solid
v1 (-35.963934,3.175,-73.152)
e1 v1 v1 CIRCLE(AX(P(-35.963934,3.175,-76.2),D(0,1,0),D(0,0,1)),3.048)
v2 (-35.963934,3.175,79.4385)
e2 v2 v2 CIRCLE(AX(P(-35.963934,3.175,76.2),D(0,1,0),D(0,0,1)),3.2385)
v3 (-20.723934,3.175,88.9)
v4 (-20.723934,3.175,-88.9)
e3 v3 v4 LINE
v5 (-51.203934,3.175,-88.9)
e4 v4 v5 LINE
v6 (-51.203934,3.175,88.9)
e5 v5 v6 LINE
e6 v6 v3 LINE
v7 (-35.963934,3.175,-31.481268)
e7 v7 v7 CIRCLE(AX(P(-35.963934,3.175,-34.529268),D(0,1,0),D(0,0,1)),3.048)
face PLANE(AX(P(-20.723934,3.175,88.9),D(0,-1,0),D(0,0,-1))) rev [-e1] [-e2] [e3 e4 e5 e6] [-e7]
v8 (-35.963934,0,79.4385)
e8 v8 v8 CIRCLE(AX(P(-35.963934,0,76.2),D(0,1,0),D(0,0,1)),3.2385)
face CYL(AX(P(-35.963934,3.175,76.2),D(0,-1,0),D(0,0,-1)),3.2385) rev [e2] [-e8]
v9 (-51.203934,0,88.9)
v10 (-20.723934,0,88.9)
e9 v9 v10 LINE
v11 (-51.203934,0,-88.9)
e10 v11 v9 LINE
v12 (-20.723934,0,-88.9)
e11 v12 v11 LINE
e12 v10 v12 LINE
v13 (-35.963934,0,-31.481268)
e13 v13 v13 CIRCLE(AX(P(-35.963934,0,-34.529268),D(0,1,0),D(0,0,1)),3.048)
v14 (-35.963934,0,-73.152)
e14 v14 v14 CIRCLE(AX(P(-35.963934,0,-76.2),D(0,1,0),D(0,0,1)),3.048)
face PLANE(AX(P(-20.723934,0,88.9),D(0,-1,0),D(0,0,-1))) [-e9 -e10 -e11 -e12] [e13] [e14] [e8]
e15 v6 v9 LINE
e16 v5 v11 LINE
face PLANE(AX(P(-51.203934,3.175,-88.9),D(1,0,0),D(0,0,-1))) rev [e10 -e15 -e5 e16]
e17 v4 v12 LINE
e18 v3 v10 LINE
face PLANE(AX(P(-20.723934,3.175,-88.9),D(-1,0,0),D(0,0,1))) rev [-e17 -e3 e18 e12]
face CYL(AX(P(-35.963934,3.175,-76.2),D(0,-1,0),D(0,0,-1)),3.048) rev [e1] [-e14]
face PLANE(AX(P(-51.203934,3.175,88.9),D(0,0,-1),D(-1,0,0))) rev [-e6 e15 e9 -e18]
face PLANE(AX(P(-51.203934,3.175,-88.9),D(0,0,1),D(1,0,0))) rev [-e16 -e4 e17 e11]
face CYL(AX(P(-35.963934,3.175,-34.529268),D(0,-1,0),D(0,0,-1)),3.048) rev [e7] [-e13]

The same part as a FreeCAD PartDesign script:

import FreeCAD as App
import Part
import Sketcher
from FreeCAD import Vector
Q = App.Units.Quantity


def add_polygon(sketch, points):
    """Adds a closed chain of lines whose ends are joined by coincident constraints."""
    first, n = sketch.GeometryCount, len(points)
    for a, b in zip(points, points[1:] + points[:1]):
        sketch.addGeometry(Part.LineSegment(App.Vector(*a, 0), App.Vector(*b, 0)), False)
    for i in range(n):
        sketch.addConstraint(Sketcher.Constraint("Coincident", first + i, 2, first + (i + 1) % n, 1))

doc = App.newDocument("Part")
params = doc.addObject("Spreadsheet::Sheet", "Params")
for row, (alias, value) in enumerate([
    ("sketch1_diameter", "0.24 in"),
    ("sketch1_height", "7 in"),
    ("sketch1_diameter2", "0.255 in"),
    ("sketch1_width", "1.2 in"),
    ("pad1_length", "0.125 in"),
], start=1):
    params.set(f"A{row}", alias)
    params.set(f"B{row}", "=" + value)
    params.setAlias(f"B{row}", alias)

body = doc.addObject("PartDesign::Body", "Body")

# Sketch on XZ plane
sketch1 = body.newObject("Sketcher::SketchObject", "Sketch")
sketch1.AttachmentSupport = (doc.getObject("XZ_Plane"), [""])
sketch1.MapMode = "FlatFace"
add_polygon(sketch1, [(-51.203934, -88.9), (-51.203934, 88.9), (-20.723934, 88.9), (-20.723934, -88.9)])  # lines 0-3
sketch1.addGeometry(Part.Circle(Vector(-35.963934, 76.2, 0), Vector(0, 0, 1), 3.2385), False)  # 4
sketch1.addGeometry(Part.Circle(Vector(-35.963934, -34.529268, 0), Vector(0, 0, 1), 3.048), False)  # 5
sketch1.addGeometry(Part.Circle(Vector(-35.963934, -76.2, 0), Vector(0, 0, 1), 3.048), False)  # 6
sketch1.addConstraint(Sketcher.Constraint("Vertical", 0))
sketch1.addConstraint(Sketcher.Constraint("Horizontal", 1))
sketch1.addConstraint(Sketcher.Constraint("Vertical", 2))
sketch1.addConstraint(Sketcher.Constraint("Horizontal", 3))
sketch1.addConstraint(Sketcher.Constraint("Equal", 5, 6))
sketch1.addConstraint(Sketcher.Constraint("Symmetric", 4, 3, 6, 3, -1))
sketch1.addConstraint(Sketcher.Constraint("Vertical", 4, 3, 5, 3))
sketch1.addConstraint(Sketcher.Constraint("Diameter", 5, Q("0.24 in")))
sketch1.addConstraint(Sketcher.Constraint("DistanceY", 0, 1, 0, 2, Q("7 in")))
sketch1.addConstraint(Sketcher.Constraint("Diameter", 4, Q("0.255 in")))
sketch1.addConstraint(Sketcher.Constraint("DistanceX", 1, 1, 1, 2, Q("1.2 in")))
sketch1.addConstraint(Sketcher.Constraint("DistanceY", -1, 1, 4, 3, Q("3 in")))
sketch1.addConstraint(Sketcher.Constraint("DistanceY", -1, 1, 0, 2, Q("3.5 in")))
sketch1.addConstraint(Sketcher.Constraint("DistanceX", 0, 2, 4, 3, Q("0.6 in")))
sketch1.addConstraint(Sketcher.Constraint("DistanceY", 5, 3, -1, 1, 34.529268))
sketch1.addConstraint(Sketcher.Constraint("DistanceX", 4, 3, -1, 1, 35.963934))
sketch1.setExpression("Constraints[11]", "Params.sketch1_diameter")
sketch1.setExpression("Constraints[12]", "Params.sketch1_height")
sketch1.setExpression("Constraints[13]", "Params.sketch1_diameter2")
sketch1.setExpression("Constraints[14]", "Params.sketch1_width")
pad1 = body.newObject("PartDesign::Pad", "Pad")
pad1.Profile = sketch1
pad1.setExpression("Length", "Params.pad1_length")
pad1.Reversed = True

doc.recompute()
